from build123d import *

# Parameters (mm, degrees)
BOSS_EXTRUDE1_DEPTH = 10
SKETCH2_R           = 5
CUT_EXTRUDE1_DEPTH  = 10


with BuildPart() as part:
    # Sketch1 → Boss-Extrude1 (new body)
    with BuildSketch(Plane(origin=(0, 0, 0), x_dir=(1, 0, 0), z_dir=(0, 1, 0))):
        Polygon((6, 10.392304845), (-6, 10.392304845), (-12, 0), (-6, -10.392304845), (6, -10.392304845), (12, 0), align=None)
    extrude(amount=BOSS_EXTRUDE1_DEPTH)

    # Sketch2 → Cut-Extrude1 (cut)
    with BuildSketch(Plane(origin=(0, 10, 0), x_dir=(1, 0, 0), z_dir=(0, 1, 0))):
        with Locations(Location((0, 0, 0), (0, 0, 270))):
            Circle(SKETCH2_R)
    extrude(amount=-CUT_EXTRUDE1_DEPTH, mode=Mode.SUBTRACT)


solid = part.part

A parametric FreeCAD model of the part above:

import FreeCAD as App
import Part
import Sketcher
Q = App.Units.Quantity


def add_polygon(sketch, points):
    """Adds a closed chain of lines whose ends are joined by coincident constraints."""
    first, n = sketch.GeometryCount, len(points)
    for a, b in zip(points, points[1:] + points[:1]):
        sketch.addGeometry(Part.LineSegment(App.Vector(*a, 0), App.Vector(*b, 0)), False)
    for i in range(n):
        sketch.addConstraint(Sketcher.Constraint("Coincident", first + i, 2, first + (i + 1) % n, 1))

doc = App.newDocument("Part")
body = doc.addObject("PartDesign::Body", "Body")

sketch1 = body.newObject("Sketcher::SketchObject", "Sketch")
sketch1.AttachmentSupport = (doc.getObject("XZ_Plane"), [""])
sketch1.MapMode = "FlatFace"
add_polygon(sketch1, [(6, -10), (-6, -10), (-12, 0), (-6, 10), (6, 10), (12, 0)])
sketch1.addConstraint(Sketcher.Constraint("Horizontal", 0))
sketch1.addConstraint(Sketcher.Constraint("Horizontal", 3))
sketch1.addConstraint(Sketcher.Constraint("Symmetric", 0, 2, 3, 2, -1, 1))
sketch1.addConstraint(Sketcher.Constraint("Symmetric", 1, 2, 4, 2, -1, 1))
sketch1.addConstraint(Sketcher.Constraint("PointOnObject", 1, 2, -1))
sketch1.addConstraint(Sketcher.Constraint("Parallel", 2, 5))
sketch1.addConstraint(Sketcher.Constraint("Vertical", 0, 2, 2, 2))
sketch1.addConstraint(Sketcher.Constraint("DistanceX", 0, 2, 0, 1, Q("12 mm")))
sketch1.addConstraint(Sketcher.Constraint("Angle", 1, Q("120 deg")))
sketch1.addConstraint(Sketcher.Constraint("Distance", 1, Q("12 mm")))
pad1 = body.newObject("PartDesign::Pad", "Pad")
pad1.Profile = sketch1
pad1.Length = 10
pad1.Reversed = True

sketch2 = body.newObject("Sketcher::SketchObject", "Sketch001")
sketch2.AttachmentSupport = (doc.getObject("XZ_Plane"), [""])
sketch2.MapMode = "FlatFace"
sketch2.AttachmentOffset = App.Placement(App.Vector(0, 0, -10), App.Rotation())
sketch2.addGeometry(Part.Circle(App.Vector(0, 0, 0), App.Vector(0, 0, 1), 5), False)
sketch2.addConstraint(Sketcher.Constraint("Coincident", 0, 3, -1, 1))
sketch2.addConstraint(Sketcher.Constraint("Diameter", 0, Q("10 mm")))
pocket1 = body.newObject("PartDesign::Pocket", "Pocket")
pocket1.Profile = sketch2
pocket1.Length = 10
pocket1.Reversed = True

doc.recompute()
